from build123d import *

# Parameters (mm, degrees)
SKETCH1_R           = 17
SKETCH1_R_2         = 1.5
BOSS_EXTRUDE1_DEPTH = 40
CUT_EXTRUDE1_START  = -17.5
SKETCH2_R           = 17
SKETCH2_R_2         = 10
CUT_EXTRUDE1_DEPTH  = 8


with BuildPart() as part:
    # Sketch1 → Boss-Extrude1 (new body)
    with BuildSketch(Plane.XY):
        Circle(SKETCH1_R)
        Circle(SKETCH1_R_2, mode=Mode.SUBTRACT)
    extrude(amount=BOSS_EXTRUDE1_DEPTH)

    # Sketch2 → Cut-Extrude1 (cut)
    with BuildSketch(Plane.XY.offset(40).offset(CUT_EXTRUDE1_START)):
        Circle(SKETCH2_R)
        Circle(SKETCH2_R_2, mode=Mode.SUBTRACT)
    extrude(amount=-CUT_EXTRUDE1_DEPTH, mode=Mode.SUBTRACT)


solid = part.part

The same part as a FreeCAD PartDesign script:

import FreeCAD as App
import Part
import Sketcher

V = App.Vector
Q = App.Units.Quantity

doc = App.newDocument("Part")
params = doc.addObject("Spreadsheet::Sheet", "Params")
for row, (alias, value) in enumerate([
    ("sketch1_diameter", "34 mm"),
    ("sketch1_diameter2", "3 mm"),
    ("pad1_length", "40 mm"),
    ("sketch2_diameter", "34 mm"),
    ("sketch2_diameter2", "20 mm"),
    ("pocket1_length", "8 mm"),
], start=1):
    params.set(f"A{row}", alias)
    params.set(f"B{row}", "=" + value)
    params.setAlias(f"B{row}", alias)

body = doc.addObject("PartDesign::Body", "Body")

sketch1 = doc.addObject("Sketcher::SketchObject", "Sketch")
body.addObject(sketch1)
sketch1.AttachmentSupport = (doc.XY_Plane, [""])
sketch1.MapMode = "FlatFace"
sketch1.addGeometry([
    Part.Circle(V(0, 0, 0), V(0, 0, 1), 17),
    Part.Circle(V(0, 0, 0), V(0, 0, 1), 1.5),
], False)
sketch1.addConstraint([
    Sketcher.Constraint("Coincident", 0, 3, -1, 1),
    Sketcher.Constraint("Coincident", 1, 3, -1, 1),
    Sketcher.Constraint("Diameter", 0, Q("34 mm")),
    Sketcher.Constraint("Diameter", 1, Q("3 mm")),
])
sketch1.setExpression("Constraints[2]", "Params.sketch1_diameter")
sketch1.setExpression("Constraints[3]", "Params.sketch1_diameter2")
pad1 = doc.addObject("PartDesign::Pad", "Pad")
body.addObject(pad1)
pad1.Profile = sketch1
pad1.setExpression("Length", "Params.pad1_length")

sketch2 = doc.addObject("Sketcher::SketchObject", "Sketch001")
body.addObject(sketch2)
sketch2.AttachmentSupport = (doc.XY_Plane, [""])
sketch2.MapMode = "FlatFace"
sketch2.AttachmentOffset = App.Placement(V(0, 0, 22.5), App.Rotation())
sketch2.addGeometry([
    Part.Circle(V(0, 0, 0), V(0, 0, 1), 17),
    Part.Circle(V(0, 0, 0), V(0, 0, 1), 10),
], False)
sketch2.addConstraint([
    Sketcher.Constraint("Coincident", 0, 3, -1, 1),
    Sketcher.Constraint("Coincident", 1, 3, -1, 1),
    Sketcher.Constraint("Diameter", 0, Q("34 mm")),
    Sketcher.Constraint("Diameter", 1, Q("20 mm")),
])
sketch2.setExpression("Constraints[2]", "Params.sketch2_diameter")
sketch2.setExpression("Constraints[3]", "Params.sketch2_diameter2")
pocket1 = doc.addObject("PartDesign::Pocket", "Pocket")
body.addObject(pocket1)
pocket1.Profile = sketch2
pocket1.setExpression("Length", "Params.pocket1_length")

doc.recompute()
